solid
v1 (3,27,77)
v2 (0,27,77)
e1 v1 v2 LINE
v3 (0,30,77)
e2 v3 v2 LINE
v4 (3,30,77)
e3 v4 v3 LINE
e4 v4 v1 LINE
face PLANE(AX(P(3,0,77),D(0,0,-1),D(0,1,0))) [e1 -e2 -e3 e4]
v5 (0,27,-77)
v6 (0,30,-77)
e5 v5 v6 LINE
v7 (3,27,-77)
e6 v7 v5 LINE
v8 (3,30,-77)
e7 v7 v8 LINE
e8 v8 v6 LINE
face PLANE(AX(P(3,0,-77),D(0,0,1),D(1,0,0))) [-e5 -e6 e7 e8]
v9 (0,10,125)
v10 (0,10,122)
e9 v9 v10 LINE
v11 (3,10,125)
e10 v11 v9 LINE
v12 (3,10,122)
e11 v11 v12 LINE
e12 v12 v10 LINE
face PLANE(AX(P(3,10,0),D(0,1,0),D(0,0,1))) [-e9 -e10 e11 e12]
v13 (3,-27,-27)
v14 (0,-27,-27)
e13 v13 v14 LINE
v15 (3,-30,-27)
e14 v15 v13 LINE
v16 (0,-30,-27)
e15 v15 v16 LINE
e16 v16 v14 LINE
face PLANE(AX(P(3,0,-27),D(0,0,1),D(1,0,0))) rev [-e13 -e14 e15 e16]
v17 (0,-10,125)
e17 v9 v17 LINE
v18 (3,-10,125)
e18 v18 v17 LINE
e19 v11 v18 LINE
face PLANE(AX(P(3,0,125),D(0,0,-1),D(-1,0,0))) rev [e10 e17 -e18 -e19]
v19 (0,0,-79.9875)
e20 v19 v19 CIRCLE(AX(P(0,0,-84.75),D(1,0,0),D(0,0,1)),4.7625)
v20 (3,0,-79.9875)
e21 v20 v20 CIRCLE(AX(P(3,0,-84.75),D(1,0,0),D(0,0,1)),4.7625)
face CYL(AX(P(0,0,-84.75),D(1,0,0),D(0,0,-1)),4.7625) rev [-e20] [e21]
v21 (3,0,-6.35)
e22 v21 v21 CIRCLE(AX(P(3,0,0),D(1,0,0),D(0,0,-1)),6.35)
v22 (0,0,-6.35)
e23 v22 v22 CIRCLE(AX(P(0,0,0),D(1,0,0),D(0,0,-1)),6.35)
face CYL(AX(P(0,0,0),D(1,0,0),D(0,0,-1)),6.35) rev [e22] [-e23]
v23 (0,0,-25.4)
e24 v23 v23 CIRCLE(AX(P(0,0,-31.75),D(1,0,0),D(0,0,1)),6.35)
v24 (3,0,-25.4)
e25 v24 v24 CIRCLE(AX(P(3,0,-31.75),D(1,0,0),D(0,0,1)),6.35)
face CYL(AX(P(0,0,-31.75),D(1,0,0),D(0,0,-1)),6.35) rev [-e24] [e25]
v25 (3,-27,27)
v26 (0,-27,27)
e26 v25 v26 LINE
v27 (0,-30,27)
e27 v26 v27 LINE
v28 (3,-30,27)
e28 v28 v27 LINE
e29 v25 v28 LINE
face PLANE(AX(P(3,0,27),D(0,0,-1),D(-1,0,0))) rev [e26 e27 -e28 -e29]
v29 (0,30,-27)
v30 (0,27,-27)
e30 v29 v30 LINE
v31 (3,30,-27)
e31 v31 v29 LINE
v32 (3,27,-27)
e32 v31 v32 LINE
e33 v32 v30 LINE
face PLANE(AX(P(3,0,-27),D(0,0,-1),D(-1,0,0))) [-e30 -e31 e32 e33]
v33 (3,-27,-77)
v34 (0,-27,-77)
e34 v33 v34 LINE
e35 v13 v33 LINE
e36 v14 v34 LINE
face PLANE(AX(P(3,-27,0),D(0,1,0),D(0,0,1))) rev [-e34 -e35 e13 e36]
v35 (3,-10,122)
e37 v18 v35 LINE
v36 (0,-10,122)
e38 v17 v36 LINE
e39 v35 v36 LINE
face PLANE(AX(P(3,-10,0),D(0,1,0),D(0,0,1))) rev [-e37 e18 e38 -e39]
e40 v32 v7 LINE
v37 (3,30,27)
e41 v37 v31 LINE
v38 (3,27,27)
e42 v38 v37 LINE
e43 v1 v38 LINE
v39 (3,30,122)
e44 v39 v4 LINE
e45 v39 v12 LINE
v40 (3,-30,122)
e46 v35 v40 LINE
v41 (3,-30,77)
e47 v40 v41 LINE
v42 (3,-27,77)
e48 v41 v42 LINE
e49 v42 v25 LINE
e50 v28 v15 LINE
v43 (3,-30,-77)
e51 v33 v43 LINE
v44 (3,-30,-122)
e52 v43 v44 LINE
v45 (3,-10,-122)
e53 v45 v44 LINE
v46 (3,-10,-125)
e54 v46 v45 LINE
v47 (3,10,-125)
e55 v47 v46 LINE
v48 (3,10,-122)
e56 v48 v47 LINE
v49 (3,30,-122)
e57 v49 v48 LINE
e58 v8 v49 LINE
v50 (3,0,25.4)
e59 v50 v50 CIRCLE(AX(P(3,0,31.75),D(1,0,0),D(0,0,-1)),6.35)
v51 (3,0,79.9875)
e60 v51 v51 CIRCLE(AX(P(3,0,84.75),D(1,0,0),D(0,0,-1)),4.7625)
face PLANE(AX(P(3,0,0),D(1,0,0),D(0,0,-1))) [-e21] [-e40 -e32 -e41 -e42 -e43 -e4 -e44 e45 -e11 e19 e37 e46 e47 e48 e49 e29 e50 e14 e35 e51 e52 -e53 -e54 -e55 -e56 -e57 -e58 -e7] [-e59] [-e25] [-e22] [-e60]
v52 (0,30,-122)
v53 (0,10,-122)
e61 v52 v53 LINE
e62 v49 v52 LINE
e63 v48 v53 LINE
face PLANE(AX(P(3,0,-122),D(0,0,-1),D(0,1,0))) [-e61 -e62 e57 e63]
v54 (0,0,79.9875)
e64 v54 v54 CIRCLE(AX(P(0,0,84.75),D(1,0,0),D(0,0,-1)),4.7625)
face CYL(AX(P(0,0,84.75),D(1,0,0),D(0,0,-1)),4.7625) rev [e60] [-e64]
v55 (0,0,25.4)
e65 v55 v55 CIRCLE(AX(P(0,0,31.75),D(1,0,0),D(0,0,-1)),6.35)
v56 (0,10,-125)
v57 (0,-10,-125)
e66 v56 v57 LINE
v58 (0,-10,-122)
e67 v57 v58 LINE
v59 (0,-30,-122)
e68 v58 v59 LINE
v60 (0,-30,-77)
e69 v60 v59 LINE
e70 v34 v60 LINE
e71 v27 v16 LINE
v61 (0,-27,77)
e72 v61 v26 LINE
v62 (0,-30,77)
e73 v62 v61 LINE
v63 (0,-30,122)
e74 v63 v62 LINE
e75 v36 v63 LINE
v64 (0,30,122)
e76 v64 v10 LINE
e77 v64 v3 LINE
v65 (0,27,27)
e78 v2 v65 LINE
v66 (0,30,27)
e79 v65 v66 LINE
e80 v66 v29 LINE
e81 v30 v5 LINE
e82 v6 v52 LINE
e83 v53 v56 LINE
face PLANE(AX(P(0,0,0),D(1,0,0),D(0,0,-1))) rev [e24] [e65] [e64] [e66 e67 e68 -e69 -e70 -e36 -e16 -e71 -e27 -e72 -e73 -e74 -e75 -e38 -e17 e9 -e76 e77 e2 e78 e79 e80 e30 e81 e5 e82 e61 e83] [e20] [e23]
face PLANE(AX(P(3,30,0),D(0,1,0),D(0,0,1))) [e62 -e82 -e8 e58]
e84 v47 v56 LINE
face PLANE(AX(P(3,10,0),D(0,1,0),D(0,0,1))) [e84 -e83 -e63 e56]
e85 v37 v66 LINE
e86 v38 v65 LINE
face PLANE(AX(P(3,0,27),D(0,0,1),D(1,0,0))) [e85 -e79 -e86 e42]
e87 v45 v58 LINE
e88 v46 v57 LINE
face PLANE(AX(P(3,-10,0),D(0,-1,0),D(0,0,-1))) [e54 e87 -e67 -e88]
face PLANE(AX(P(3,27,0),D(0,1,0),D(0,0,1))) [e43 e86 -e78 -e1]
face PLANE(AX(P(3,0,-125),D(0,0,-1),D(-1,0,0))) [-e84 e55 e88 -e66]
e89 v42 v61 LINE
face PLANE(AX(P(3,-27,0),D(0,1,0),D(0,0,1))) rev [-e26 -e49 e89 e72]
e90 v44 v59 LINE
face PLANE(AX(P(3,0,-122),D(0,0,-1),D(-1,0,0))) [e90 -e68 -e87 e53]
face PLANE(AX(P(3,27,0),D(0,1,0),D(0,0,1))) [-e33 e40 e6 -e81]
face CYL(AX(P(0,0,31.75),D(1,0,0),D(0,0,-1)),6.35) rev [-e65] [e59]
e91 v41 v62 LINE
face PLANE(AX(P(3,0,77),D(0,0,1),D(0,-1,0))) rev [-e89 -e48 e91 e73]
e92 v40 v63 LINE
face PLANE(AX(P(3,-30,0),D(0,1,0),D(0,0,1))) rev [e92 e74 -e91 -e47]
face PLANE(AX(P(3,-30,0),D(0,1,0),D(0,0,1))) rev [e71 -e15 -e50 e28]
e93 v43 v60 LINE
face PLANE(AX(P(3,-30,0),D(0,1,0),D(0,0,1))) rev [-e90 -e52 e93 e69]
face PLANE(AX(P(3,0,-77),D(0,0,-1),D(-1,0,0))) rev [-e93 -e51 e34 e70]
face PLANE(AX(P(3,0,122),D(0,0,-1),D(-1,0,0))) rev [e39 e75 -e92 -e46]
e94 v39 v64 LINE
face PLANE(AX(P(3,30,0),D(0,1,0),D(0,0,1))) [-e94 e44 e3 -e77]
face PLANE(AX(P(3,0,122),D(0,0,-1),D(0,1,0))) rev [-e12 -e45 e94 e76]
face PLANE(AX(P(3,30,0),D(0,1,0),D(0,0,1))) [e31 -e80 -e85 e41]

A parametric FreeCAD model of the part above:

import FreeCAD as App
import Part
import Sketcher

doc = App.newDocument("Part")
body = doc.addObject("PartDesign::Body", "Body")

# Sketch on YZ plane
sketch1 = doc.addObject("Sketcher::SketchObject", "Sketch")
body.addObject(sketch1)
sketch1.AttachmentSupport = (doc.YZ_Plane, [""])
sketch1.MapMode = "FlatFace"
sketch1.addGeometry([
    Part.LineSegment(App.Vector(30, 77, 0), App.Vector(30, 122, 0)),  # 0
    Part.LineSegment(App.Vector(30, 122, 0), App.Vector(10, 122, 0)),  # 1
    Part.LineSegment(App.Vector(10, 122, 0), App.Vector(10, 125, 0)),  # 2
    Part.LineSegment(App.Vector(10, 125, 0), App.Vector(-10, 125, 0)),  # 3
    Part.LineSegment(App.Vector(-10, 125, 0), App.Vector(-10, 122, 0)),  # 4
    Part.LineSegment(App.Vector(-10, 122, 0), App.Vector(-30, 122, 0)),  # 5
    Part.LineSegment(App.Vector(-30, 122, 0), App.Vector(-30, 77, 0)),  # 6
    Part.LineSegment(App.Vector(-30, 77, 0), App.Vector(-27, 77, 0)),  # 7
    Part.LineSegment(App.Vector(-27, 77, 0), App.Vector(-27, 27, 0)),  # 8
    Part.LineSegment(App.Vector(-27, 27, 0), App.Vector(-30, 27, 0)),  # 9
    Part.LineSegment(App.Vector(-30, 27, 0), App.Vector(-30, -27, 0)),  # 10
    Part.LineSegment(App.Vector(-30, -27, 0), App.Vector(-27, -27, 0)),  # 11
    Part.LineSegment(App.Vector(-27, -27, 0), App.Vector(-27, -77, 0)),  # 12
    Part.LineSegment(App.Vector(-27, -77, 0), App.Vector(-30, -77, 0)),  # 13
    Part.LineSegment(App.Vector(-30, -77, 0), App.Vector(-30, -122, 0)),  # 14
    Part.LineSegment(App.Vector(-30, -122, 0), App.Vector(-10, -122, 0)),  # 15
    Part.LineSegment(App.Vector(-10, -122, 0), App.Vector(-10, -125, 0)),  # 16
    Part.LineSegment(App.Vector(-10, -125, 0), App.Vector(10, -125, 0)),  # 17
    Part.LineSegment(App.Vector(10, -125, 0), App.Vector(10, -122, 0)),  # 18
    Part.LineSegment(App.Vector(10, -122, 0), App.Vector(30, -122, 0)),  # 19
    Part.LineSegment(App.Vector(30, -122, 0), App.Vector(30, -77, 0)),  # 20
    Part.LineSegment(App.Vector(30, -77, 0), App.Vector(27, -77, 0)),  # 21
    Part.LineSegment(App.Vector(27, -77, 0), App.Vector(27, -27, 0)),  # 22
    Part.LineSegment(App.Vector(27, -27, 0), App.Vector(30, -27, 0)),  # 23
    Part.LineSegment(App.Vector(30, -27, 0), App.Vector(30, 27, 0)),  # 24
    Part.LineSegment(App.Vector(30, 27, 0), App.Vector(27, 27, 0)),  # 25
    Part.LineSegment(App.Vector(27, 27, 0), App.Vector(27, 77, 0)),  # 26
    Part.LineSegment(App.Vector(27, 77, 0), App.Vector(30, 77, 0)),  # 27
], False)
sketch1.addConstraint([
    Sketcher.Constraint("Coincident", 0, 2, 1, 1),
    Sketcher.Constraint("Coincident", 1, 2, 2, 1),
    Sketcher.Constraint("Coincident", 2, 2, 3, 1),
    Sketcher.Constraint("Coincident", 3, 2, 4, 1),
    Sketcher.Constraint("Coincident", 4, 2, 5, 1),
    Sketcher.Constraint("Coincident", 5, 2, 6, 1),
    Sketcher.Constraint("Coincident", 6, 2, 7, 1),
    Sketcher.Constraint("Coincident", 7, 2, 8, 1),
    Sketcher.Constraint("Coincident", 8, 2, 9, 1),
    Sketcher.Constraint("Coincident", 9, 2, 10, 1),
    Sketcher.Constraint("Coincident", 10, 2, 11, 1),
    Sketcher.Constraint("Coincident", 11, 2, 12, 1),
    Sketcher.Constraint("Coincident", 12, 2, 13, 1),
    Sketcher.Constraint("Coincident", 13, 2, 14, 1),
    Sketcher.Constraint("Coincident", 14, 2, 15, 1),
    Sketcher.Constraint("Coincident", 15, 2, 16, 1),
    Sketcher.Constraint("Coincident", 16, 2, 17, 1),
    Sketcher.Constraint("Coincident", 17, 2, 18, 1),
    Sketcher.Constraint("Coincident", 18, 2, 19, 1),
    Sketcher.Constraint("Coincident", 19, 2, 20, 1),
    Sketcher.Constraint("Coincident", 20, 2, 21, 1),
    Sketcher.Constraint("Coincident", 21, 2, 22, 1),
    Sketcher.Constraint("Coincident", 22, 2, 23, 1),
    Sketcher.Constraint("Coincident", 23, 2, 24, 1),
    Sketcher.Constraint("Coincident", 24, 2, 25, 1),
    Sketcher.Constraint("Coincident", 25, 2, 26, 1),
    Sketcher.Constraint("Coincident", 26, 2, 27, 1),
    Sketcher.Constraint("Coincident", 27, 2, 0, 1),
    Sketcher.Constraint("Vertical", 0),
    Sketcher.Constraint("Horizontal", 1),
    Sketcher.Constraint("Vertical", 2),
    Sketcher.Constraint("Horizontal", 3),
    Sketcher.Constraint("Vertical", 4),
    Sketcher.Constraint("Horizontal", 5),
    Sketcher.Constraint("Vertical", 6),
    Sketcher.Constraint("Horizontal", 7),
    Sketcher.Constraint("Vertical", 8),
    Sketcher.Constraint("Horizontal", 9),
    Sketcher.Constraint("Vertical", 10),
    Sketcher.Constraint("Horizontal", 11),
    Sketcher.Constraint("Vertical", 12),
    Sketcher.Constraint("Horizontal", 13),
    Sketcher.Constraint("Vertical", 14),
    Sketcher.Constraint("Horizontal", 15),
    Sketcher.Constraint("Vertical", 16),
    Sketcher.Constraint("Horizontal", 17),
    Sketcher.Constraint("Vertical", 18),
    Sketcher.Constraint("Horizontal", 19),
    Sketcher.Constraint("Vertical", 20),
    Sketcher.Constraint("Horizontal", 21),
    Sketcher.Constraint("Vertical", 22),
    Sketcher.Constraint("Horizontal", 23),
    Sketcher.Constraint("Vertical", 24),
    Sketcher.Constraint("Horizontal", 25),
    Sketcher.Constraint("Vertical", 26),
    Sketcher.Constraint("Horizontal", 27),
    Sketcher.Constraint("Symmetric", 0, 2, 14, 2, -1, 1),
    Sketcher.Constraint("Symmetric", 2, 2, 16, 2, -1, 1),
    Sketcher.Constraint("Symmetric", 4, 2, 18, 2, -1, 1),
    Sketcher.Constraint("Symmetric", 6, 2, 20, 2, -1, 1),
    Sketcher.Constraint("Symmetric", 8, 2, 22, 2, -1, 1),
    Sketcher.Constraint("Symmetric", 10, 2, 24, 2, -1, 1),
    Sketcher.Constraint("Symmetric", 12, 2, 26, 2, -1, 1),
    Sketcher.Constraint("Symmetric", 1, 2, 4, 2, -2),
    Sketcher.Constraint("Symmetric", 13, 2, 20, 2, -2),
    Sketcher.Constraint("Symmetric", 11, 2, 22, 2, -2),
    Sketcher.Constraint("Vertical", 6, 2, 9, 2),
    Sketcher.Constraint("Equal", 1, 3),
    Sketcher.Constraint("Equal", 27, 2),
    Sketcher.Constraint("DistanceX", 1, 2, 1, 1, 20.0),
    Sketcher.Constraint("DistanceX", 7, 1, 7, 2, 3.0),
    Sketcher.Constraint("DistanceY", 0, 1, 0, 2, 45.0),
    Sketcher.Constraint("DistanceY", 8, 2, 8, 1, 50.0),
    Sketcher.Constraint("DistanceY", 10, 2, 10, 1, 54.0),
])
pad1 = doc.addObject("PartDesign::Pad", "Pad")
body.addObject(pad1)
pad1.Profile = sketch1
pad1.Length = 3

# Sketch on YZ plane
sketch2 = doc.addObject("Sketcher::SketchObject", "Sketch001")
body.addObject(sketch2)
sketch2.AttachmentSupport = (doc.YZ_Plane, [""])
sketch2.MapMode = "FlatFace"
sketch2.AttachmentOffset = App.Placement(App.Vector(0, 0, 3), App.Rotation())
sketch2.addGeometry([
    Part.Circle(App.Vector(0, 0, 0), App.Vector(0, 0, 1), 6.3),  # 0
    Part.Circle(App.Vector(0, 31.8, 0), App.Vector(0, 0, 1), 6.3),  # 1
    Part.Circle(App.Vector(0, -31.8, 0), App.Vector(0, 0, 1), 6.3),  # 2
    Part.Circle(App.Vector(0, 84.8, 0), App.Vector(0, 0, 1), 4.8),  # 3
    Part.Circle(App.Vector(0, -84.8, 0), App.Vector(0, 0, 1), 4.8),  # 4
], False)
sketch2.addConstraint([
    Sketcher.Constraint("Coincident", 0, 3, -1, 1),
    Sketcher.Constraint("Equal", 0, 1),
    Sketcher.Constraint("Equal", 1, 2),
    Sketcher.Constraint("Equal", 3, 4),
    Sketcher.Constraint("Symmetric", 1, 3, 2, 3, -1, 1),
    Sketcher.Constraint("Symmetric", 3, 3, 4, 3, -1, 1),
    Sketcher.Constraint("PointOnObject", 1, 3, -2),
    Sketcher.Constraint("PointOnObject", 3, 3, -2),
    Sketcher.Constraint("Diameter", 0, 12.7),
    Sketcher.Constraint("Diameter", 3, 9.525),
    Sketcher.Constraint("DistanceY", 1, 3, 3, 3, 53.0),
    Sketcher.Constraint("DistanceY", 2, 3, 1, 3, 63.5),
])
pocket1 = doc.addObject("PartDesign::Pocket", "Pocket")
body.addObject(pocket1)
pocket1.Profile = sketch2
pocket1.Type = "ThroughAll"

doc.recompute()
